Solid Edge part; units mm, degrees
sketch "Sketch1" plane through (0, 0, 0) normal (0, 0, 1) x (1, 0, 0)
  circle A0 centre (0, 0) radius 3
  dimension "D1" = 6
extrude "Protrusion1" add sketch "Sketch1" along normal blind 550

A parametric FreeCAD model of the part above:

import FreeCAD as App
import Part
import Sketcher

V = App.Vector

doc = App.newDocument("Part")
params = doc.addObject("Spreadsheet::Sheet", "Params")
for row, (alias, value) in enumerate([
    ("sketch1_diameter", "6 mm"),
    ("pad1_length", "550 mm"),
], start=1):
    params.set(f"A{row}", alias)
    params.set(f"B{row}", "=" + value)
    params.setAlias(f"B{row}", alias)

body = doc.addObject("PartDesign::Body", "Body")

sketch1 = body.newObject("Sketcher::SketchObject", "Sketch")
sketch1.AttachmentSupport = (doc.getObject("XY_Plane"), [""])
sketch1.MapMode = "FlatFace"
sketch1.addGeometry(Part.Circle(V(0, 0, 0), V(0, 0, 1), 3), False)
sketch1.addConstraint([
    Sketcher.Constraint("Coincident", 0, 3, -1, 1),
    Sketcher.Constraint("Diameter", 0, 6.0),
])
sketch1.setExpression("Constraints[1]", "Params.sketch1_diameter")
pad1 = body.newObject("PartDesign::Pad", "Pad")
pad1.Profile = sketch1
pad1.setExpression("Length", "Params.pad1_length")

doc.recompute()
